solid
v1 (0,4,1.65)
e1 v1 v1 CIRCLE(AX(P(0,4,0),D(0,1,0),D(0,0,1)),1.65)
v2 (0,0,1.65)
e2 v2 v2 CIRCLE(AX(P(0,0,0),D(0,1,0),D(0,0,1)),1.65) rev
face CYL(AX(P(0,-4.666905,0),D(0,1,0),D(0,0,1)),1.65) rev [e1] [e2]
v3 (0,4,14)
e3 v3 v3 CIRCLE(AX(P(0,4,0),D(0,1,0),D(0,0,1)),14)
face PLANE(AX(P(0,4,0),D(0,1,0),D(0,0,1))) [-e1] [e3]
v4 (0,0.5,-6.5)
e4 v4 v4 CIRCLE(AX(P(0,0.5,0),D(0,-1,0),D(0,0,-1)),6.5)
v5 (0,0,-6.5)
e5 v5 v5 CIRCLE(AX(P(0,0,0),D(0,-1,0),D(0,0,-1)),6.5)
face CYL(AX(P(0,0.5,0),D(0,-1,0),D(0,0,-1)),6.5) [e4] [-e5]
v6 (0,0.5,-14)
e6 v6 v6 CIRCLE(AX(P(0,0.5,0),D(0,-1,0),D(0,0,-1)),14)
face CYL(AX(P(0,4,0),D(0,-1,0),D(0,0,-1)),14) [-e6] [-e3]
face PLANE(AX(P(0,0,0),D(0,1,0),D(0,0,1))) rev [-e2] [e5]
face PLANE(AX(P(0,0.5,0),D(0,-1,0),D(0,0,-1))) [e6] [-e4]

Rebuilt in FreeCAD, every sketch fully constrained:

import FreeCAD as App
import Part
import Sketcher
from FreeCAD import Vector
Q = App.Units.Quantity

doc = App.newDocument("Part")
body = doc.addObject("PartDesign::Body", "Body")

# Sketch on XZ plane
sketch1 = body.newObject("Sketcher::SketchObject", "Sketch")
sketch1.AttachmentSupport = (doc.getObject("XZ_Plane"), [""])
sketch1.MapMode = "FlatFace"
sketch1.addGeometry(Part.Circle(Vector(0, 0, 0), Vector(0, 0, 1), 14), False)
sketch1.addConstraint(Sketcher.Constraint("Coincident", 0, 3, -1, 1))
sketch1.addConstraint(Sketcher.Constraint("Diameter", 0, Q("28 mm")))
pad1 = body.newObject("PartDesign::Pad", "Pad")
pad1.Profile = sketch1
pad1.Length = 4
pad1.Reversed = True

# Sketch on XZ plane
sketch2 = body.newObject("Sketcher::SketchObject", "Sketch001")
sketch2.AttachmentSupport = (doc.getObject("XZ_Plane"), [""])
sketch2.MapMode = "FlatFace"
sketch2.addGeometry(Part.Circle(Vector(0, 0, 0), Vector(0, 0, 1), 14), False)
sketch2.addGeometry(Part.Circle(Vector(0, 0, 0), Vector(0, 0, 1), 6), False)
sketch2.addConstraint(Sketcher.Constraint("Coincident", 0, 3, -1, 1))
sketch2.addConstraint(Sketcher.Constraint("Coincident", 1, 3, -1, 1))
sketch2.addConstraint(Sketcher.Constraint("Diameter", 0, Q("28 mm")))
sketch2.addConstraint(Sketcher.Constraint("Diameter", 1, Q("13 mm")))
pocket1 = body.newObject("PartDesign::Pocket", "Pocket")
pocket1.Profile = sketch2
pocket1.Length = 0.5

# Sketch on XZ plane
sketch3 = body.newObject("Sketcher::SketchObject", "Sketch002")
sketch3.AttachmentSupport = (doc.getObject("XZ_Plane"), [""])
sketch3.MapMode = "FlatFace"
sketch3.AttachmentOffset = App.Placement(Vector(0, 0, -4), App.Rotation())
sketch3.addGeometry(Part.Circle(Vector(0, 0, 0), Vector(0, 0, 1), 1.6), False)
sketch3.addConstraint(Sketcher.Constraint("Coincident", 0, 3, -1, 1))
sketch3.addConstraint(Sketcher.Constraint("Diameter", 0, Q("3.3 mm")))
pocket2 = body.newObject("PartDesign::Pocket", "Pocket001")
pocket2.Profile = sketch3
pocket2.Length = 4
pocket2.Reversed = True

doc.recompute()
